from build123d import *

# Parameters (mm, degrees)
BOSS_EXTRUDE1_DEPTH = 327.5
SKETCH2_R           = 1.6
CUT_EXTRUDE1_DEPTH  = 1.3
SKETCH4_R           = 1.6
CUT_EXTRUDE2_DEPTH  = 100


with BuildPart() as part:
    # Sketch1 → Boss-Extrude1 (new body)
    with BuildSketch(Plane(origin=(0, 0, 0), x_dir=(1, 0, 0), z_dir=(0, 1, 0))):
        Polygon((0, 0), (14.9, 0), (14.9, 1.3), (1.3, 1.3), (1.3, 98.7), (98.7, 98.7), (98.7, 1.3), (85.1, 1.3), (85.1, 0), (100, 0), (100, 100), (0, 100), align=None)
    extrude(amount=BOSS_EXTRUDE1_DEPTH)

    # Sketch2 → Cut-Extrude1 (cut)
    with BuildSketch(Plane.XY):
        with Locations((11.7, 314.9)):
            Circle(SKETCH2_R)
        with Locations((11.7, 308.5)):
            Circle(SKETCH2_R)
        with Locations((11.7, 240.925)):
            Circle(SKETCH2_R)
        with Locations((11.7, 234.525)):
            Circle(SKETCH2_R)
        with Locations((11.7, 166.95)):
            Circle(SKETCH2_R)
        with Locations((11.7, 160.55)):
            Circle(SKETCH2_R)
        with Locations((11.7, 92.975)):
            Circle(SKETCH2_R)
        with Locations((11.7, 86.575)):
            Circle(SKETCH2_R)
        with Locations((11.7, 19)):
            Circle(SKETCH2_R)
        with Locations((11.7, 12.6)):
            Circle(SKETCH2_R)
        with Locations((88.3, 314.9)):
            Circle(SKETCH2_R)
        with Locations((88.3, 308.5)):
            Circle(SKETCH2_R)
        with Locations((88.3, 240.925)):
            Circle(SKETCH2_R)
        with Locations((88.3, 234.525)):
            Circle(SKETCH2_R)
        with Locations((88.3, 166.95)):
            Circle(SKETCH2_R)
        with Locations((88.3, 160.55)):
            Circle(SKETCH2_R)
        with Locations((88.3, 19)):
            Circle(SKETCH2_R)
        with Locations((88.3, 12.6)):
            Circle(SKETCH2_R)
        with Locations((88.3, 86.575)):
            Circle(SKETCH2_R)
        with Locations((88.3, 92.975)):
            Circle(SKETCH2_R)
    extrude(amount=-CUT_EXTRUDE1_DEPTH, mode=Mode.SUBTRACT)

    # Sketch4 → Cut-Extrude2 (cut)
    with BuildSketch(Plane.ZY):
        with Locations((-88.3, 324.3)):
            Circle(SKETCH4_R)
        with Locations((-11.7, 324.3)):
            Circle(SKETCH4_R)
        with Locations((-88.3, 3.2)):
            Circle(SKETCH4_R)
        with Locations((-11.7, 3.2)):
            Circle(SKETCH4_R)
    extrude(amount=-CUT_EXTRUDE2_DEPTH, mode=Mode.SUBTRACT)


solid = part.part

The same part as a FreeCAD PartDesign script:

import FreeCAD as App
import Part
import Sketcher
from FreeCAD import Vector
Q = App.Units.Quantity

doc = App.newDocument("Part")
params = doc.addObject("Spreadsheet::Sheet", "Params")
for row, (alias, value) in enumerate([
    ("sketch1_width", "100 mm"),
    ("sketch1_width2", "14.9 mm"),
    ("sketch1_width3", "13.6 mm"),
    ("sketch1_height", "1.3 mm"),
    ("pad1_length", "327.5 mm"),
    ("sketch2_diameter", "3.2 mm"),
    ("pocket1_length", "1.3 mm"),
    ("sketch3_diameter", "3.2 mm"),
    ("pocket2_length", "100 mm"),
], start=1):
    params.set(f"A{row}", alias)
    params.set(f"B{row}", "=" + value)
    params.setAlias(f"B{row}", alias)

body = doc.addObject("PartDesign::Body", "Body")

sketch1 = body.newObject("Sketcher::SketchObject", "Sketch")
sketch1.AttachmentSupport = (doc.getObject("XZ_Plane"), [""])
sketch1.MapMode = "FlatFace"
sketch1.addGeometry([
    Part.LineSegment(Vector(0, 0, 0), Vector(14.9, 0, 0)),
    Part.LineSegment(Vector(14.9, 0, 0), Vector(14.9, -1.3, 0)),
    Part.LineSegment(Vector(14.9, -1.3, 0), Vector(1.3, -1.3, 0)),
    Part.LineSegment(Vector(1.3, -1.3, 0), Vector(1.3, -98.7, 0)),
    Part.LineSegment(Vector(1.3, -98.7, 0), Vector(98.7, -98.7, 0)),
    Part.LineSegment(Vector(98.7, -98.7, 0), Vector(98.7, -1.3, 0)),
    Part.LineSegment(Vector(98.7, -1.3, 0), Vector(85.1, -1.3, 0)),
    Part.LineSegment(Vector(85.1, -1.3, 0), Vector(85.1, 0, 0)),
    Part.LineSegment(Vector(85.1, 0, 0), Vector(100, 0, 0)),
    Part.LineSegment(Vector(100, 0, 0), Vector(100, -100, 0)),
    Part.LineSegment(Vector(100, -100, 0), Vector(0, -100, 0)),
    Part.LineSegment(Vector(0, -100, 0), Vector(0, 0, 0)),
], False)
sketch1.addConstraint([
    Sketcher.Constraint("Coincident", 0, 2, 1, 1),
    Sketcher.Constraint("Coincident", 1, 2, 2, 1),
    Sketcher.Constraint("Coincident", 2, 2, 3, 1),
    Sketcher.Constraint("Coincident", 3, 2, 4, 1),
    Sketcher.Constraint("Coincident", 4, 2, 5, 1),
    Sketcher.Constraint("Coincident", 5, 2, 6, 1),
    Sketcher.Constraint("Coincident", 6, 2, 7, 1),
    Sketcher.Constraint("Coincident", 7, 2, 8, 1),
    Sketcher.Constraint("Coincident", 8, 2, 9, 1),
    Sketcher.Constraint("Coincident", 9, 2, 10, 1),
    Sketcher.Constraint("Coincident", 10, 2, 11, 1),
    Sketcher.Constraint("Coincident", 11, 2, 0, 1),
    Sketcher.Constraint("Horizontal", 0),
    Sketcher.Constraint("Vertical", 1),
    Sketcher.Constraint("Horizontal", 2),
    Sketcher.Constraint("Vertical", 3),
    Sketcher.Constraint("Horizontal", 4),
    Sketcher.Constraint("Vertical", 5),
    Sketcher.Constraint("Horizontal", 6),
    Sketcher.Constraint("Vertical", 7),
    Sketcher.Constraint("Horizontal", 8),
    Sketcher.Constraint("Vertical", 9),
    Sketcher.Constraint("Horizontal", 10),
    Sketcher.Constraint("Vertical", 11),
    Sketcher.Constraint("Coincident", 11, 2, -1, 1),
    Sketcher.Constraint("PointOnObject", 7, 2, -1),
    Sketcher.Constraint("Horizontal", 2, 2, 5, 2),
    Sketcher.Constraint("Equal", 2, 6),
    Sketcher.Constraint("Equal", 0, 8),
    Sketcher.Constraint("Equal", 4, 3),
    Sketcher.Constraint("Equal", 10, 9),
    Sketcher.Constraint("DistanceX", 10, 2, 10, 1, Q("100 mm")),
    Sketcher.Constraint("DistanceX", 0, 1, 0, 2, Q("14.9 mm")),
    Sketcher.Constraint("DistanceX", 2, 2, 2, 1, Q("13.6 mm")),
    Sketcher.Constraint("DistanceY", 1, 2, 1, 1, Q("1.3 mm")),
])
sketch1.setExpression("Constraints[31]", "Params.sketch1_width")
sketch1.setExpression("Constraints[32]", "Params.sketch1_width2")
sketch1.setExpression("Constraints[33]", "Params.sketch1_width3")
sketch1.setExpression("Constraints[34]", "Params.sketch1_height")
pad1 = body.newObject("PartDesign::Pad", "Pad")
pad1.Profile = sketch1
pad1.setExpression("Length", "Params.pad1_length")
pad1.Reversed = True

sketch2 = body.newObject("Sketcher::SketchObject", "Sketch001")
sketch2.AttachmentSupport = (doc.getObject("XY_Plane"), [""])
sketch2.MapMode = "FlatFace"
sketch2.addGeometry([
    Part.Circle(Vector(11.7, 314.9, 0), Vector(0, 0, 1), 1.6),
    Part.Circle(Vector(11.7, 308.5, 0), Vector(0, 0, 1), 1.6),
    Part.Circle(Vector(11.7, 240.9, 0), Vector(0, 0, 1), 1.6),
    Part.Circle(Vector(11.7, 234.5, 0), Vector(0, 0, 1), 1.6),
    Part.Circle(Vector(11.7, 166.9, 0), Vector(0, 0, 1), 1.6),
    Part.Circle(Vector(11.7, 160.6, 0), Vector(0, 0, 1), 1.6),
    Part.Circle(Vector(11.7, 93, 0), Vector(0, 0, 1), 1.6),
    Part.Circle(Vector(11.7, 86.6, 0), Vector(0, 0, 1), 1.6),
    Part.Circle(Vector(11.7, 19, 0), Vector(0, 0, 1), 1.6),
    Part.Circle(Vector(11.7, 12.6, 0), Vector(0, 0, 1), 1.6),
    Part.Circle(Vector(88.3, 314.9, 0), Vector(0, 0, 1), 1.6),
    Part.Circle(Vector(88.3, 308.5, 0), Vector(0, 0, 1), 1.6),
    Part.Circle(Vector(88.3, 240.9, 0), Vector(0, 0, 1), 1.6),
    Part.Circle(Vector(88.3, 234.5, 0), Vector(0, 0, 1), 1.6),
    Part.Circle(Vector(88.3, 166.9, 0), Vector(0, 0, 1), 1.6),
    Part.Circle(Vector(88.3, 160.6, 0), Vector(0, 0, 1), 1.6),
    Part.Circle(Vector(88.3, 19, 0), Vector(0, 0, 1), 1.6),
    Part.Circle(Vector(88.3, 12.6, 0), Vector(0, 0, 1), 1.6),
    Part.Circle(Vector(88.3, 86.6, 0), Vector(0, 0, 1), 1.6),
    Part.Circle(Vector(88.3, 93, 0), Vector(0, 0, 1), 1.6),
], False)
sketch2.addConstraint([
    Sketcher.Constraint("Equal", 0, 1),
    Sketcher.Constraint("Equal", 1, 2),
    Sketcher.Constraint("Equal", 2, 3),
    Sketcher.Constraint("Equal", 3, 4),
    Sketcher.Constraint("Equal", 4, 5),
    Sketcher.Constraint("Equal", 5, 6),
    Sketcher.Constraint("Equal", 6, 7),
    Sketcher.Constraint("Equal", 7, 8),
    Sketcher.Constraint("Equal", 8, 9),
    Sketcher.Constraint("Equal", 9, 10),
    Sketcher.Constraint("Equal", 10, 11),
    Sketcher.Constraint("Equal", 11, 12),
    Sketcher.Constraint("Equal", 12, 13),
    Sketcher.Constraint("Equal", 13, 14),
    Sketcher.Constraint("Equal", 14, 15),
    Sketcher.Constraint("Equal", 15, 16),
    Sketcher.Constraint("Equal", 16, 17),
    Sketcher.Constraint("Equal", 17, 18),
    Sketcher.Constraint("Equal", 18, 19),
    Sketcher.Constraint("Horizontal", 0, 3, 10, 3),
    Sketcher.Constraint("Horizontal", 1, 3, 11, 3),
    Sketcher.Constraint("Horizontal", 2, 3, 12, 3),
    Sketcher.Constraint("Horizontal", 3, 3, 13, 3),
    Sketcher.Constraint("Horizontal", 4, 3, 14, 3),
    Sketcher.Constraint("Horizontal", 5, 3, 15, 3),
    Sketcher.Constraint("Horizontal", 8, 3, 16, 3),
    Sketcher.Constraint("Horizontal", 9, 3, 17, 3),
    Sketcher.Constraint("Horizontal", 7, 3, 18, 3),
    Sketcher.Constraint("Horizontal", 6, 3, 19, 3),
    Sketcher.Constraint("Vertical", 0, 3, 1, 3),
    Sketcher.Constraint("Vertical", 1, 3, 2, 3),
    Sketcher.Constraint("Vertical", 2, 3, 3, 3),
    Sketcher.Constraint("Vertical", 3, 3, 4, 3),
    Sketcher.Constraint("Vertical", 4, 3, 5, 3),
    Sketcher.Constraint("Vertical", 5, 3, 6, 3),
    Sketcher.Constraint("Vertical", 6, 3, 7, 3),
    Sketcher.Constraint("Vertical", 7, 3, 8, 3),
    Sketcher.Constraint("Vertical", 8, 3, 9, 3),
    Sketcher.Constraint("Vertical", 10, 3, 11, 3),
    Sketcher.Constraint("Vertical", 11, 3, 12, 3),
    Sketcher.Constraint("Vertical", 12, 3, 13, 3),
    Sketcher.Constraint("Vertical", 13, 3, 14, 3),
    Sketcher.Constraint("Vertical", 14, 3, 15, 3),
    Sketcher.Constraint("Vertical", 15, 3, 16, 3),
    Sketcher.Constraint("Vertical", 16, 3, 17, 3),
    Sketcher.Constraint("Vertical", 17, 3, 18, 3),
    Sketcher.Constraint("Vertical", 18, 3, 19, 3),
    Sketcher.Constraint("Diameter", 0, Q("3.2 mm")),
    Sketcher.Constraint("DistanceY", -1, 1, 8, 3, Q("19 mm")),
    Sketcher.Constraint("DistanceX", -1, 1, 0, 3, Q("11.7 mm")),
    Sketcher.Constraint("DistanceY", -1, 1, 0, 3, Q("314.9 mm")),
    Sketcher.Constraint("DistanceY", -1, 1, 1, 3, Q("308.5 mm")),
    Sketcher.Constraint("DistanceY", -1, 1, 9, 3, Q("12.6 mm")),
    Sketcher.Constraint("DistanceX", -1, 1, 10, 3, Q("88.3 mm")),
    Sketcher.Constraint("DistanceY", 3, 3, 2, 3, Q("6.4 mm")),
    Sketcher.Constraint("DistanceY", 5, 3, 4, 3, Q("6.4 mm")),
    Sketcher.Constraint("DistanceY", 7, 3, 6, 3, Q("6.4 mm")),
    Sketcher.Constraint("DistanceY", -1, 1, 4, 3, Q("166.95 mm")),
    Sketcher.Constraint("DistanceY", 6, 3, 3, 3, Q("141.55 mm")),
    Sketcher.Constraint("DistanceY", -1, 1, 2, 3, Q("240.925 mm")),
])
sketch2.setExpression("Constraints[47]", "Params.sketch2_diameter")
pocket1 = body.newObject("PartDesign::Pocket", "Pocket")
pocket1.Profile = sketch2
pocket1.setExpression("Length", "Params.pocket1_length")

sketch3 = body.newObject("Sketcher::SketchObject", "Sketch002")
sketch3.AttachmentSupport = (doc.getObject("YZ_Plane"), [""])
sketch3.MapMode = "FlatFace"
sketch3.addGeometry([
    Part.Circle(Vector(324.3, -88.3, 0), Vector(0, 0, 1), 1.6),
    Part.Circle(Vector(324.3, -11.7, 0), Vector(0, 0, 1), 1.6),
    Part.Circle(Vector(3.2, -88.3, 0), Vector(0, 0, 1), 1.6),
    Part.Circle(Vector(3.2, -11.7, 0), Vector(0, 0, 1), 1.6),
], False)
sketch3.addConstraint([
    Sketcher.Constraint("Equal", 0, 1),
    Sketcher.Constraint("Equal", 1, 2),
    Sketcher.Constraint("Equal", 2, 3),
    Sketcher.Constraint("Horizontal", 0, 3, 2, 3),
    Sketcher.Constraint("Horizontal", 1, 3, 3, 3),
    Sketcher.Constraint("Vertical", 0, 3, 1, 3),
    Sketcher.Constraint("Vertical", 2, 3, 3, 3),
    Sketcher.Constraint("Diameter", 0, Q("3.2 mm")),
    Sketcher.Constraint("DistanceX", -1, 1, 0, 3, Q("324.3 mm")),
    Sketcher.Constraint("DistanceY", 0, 3, -1, 1, Q("88.3 mm")),
    Sketcher.Constraint("DistanceY", 1, 3, -1, 1, Q("11.7 mm")),
    Sketcher.Constraint("DistanceX", -1, 1, 2, 3, Q("3.2 mm")),
])
sketch3.setExpression("Constraints[7]", "Params.sketch3_diameter")
pocket2 = body.newObject("PartDesign::Pocket", "Pocket001")
pocket2.Profile = sketch3
pocket2.setExpression("Length", "Params.pocket2_length")
pocket2.Reversed = True

doc.recompute()
